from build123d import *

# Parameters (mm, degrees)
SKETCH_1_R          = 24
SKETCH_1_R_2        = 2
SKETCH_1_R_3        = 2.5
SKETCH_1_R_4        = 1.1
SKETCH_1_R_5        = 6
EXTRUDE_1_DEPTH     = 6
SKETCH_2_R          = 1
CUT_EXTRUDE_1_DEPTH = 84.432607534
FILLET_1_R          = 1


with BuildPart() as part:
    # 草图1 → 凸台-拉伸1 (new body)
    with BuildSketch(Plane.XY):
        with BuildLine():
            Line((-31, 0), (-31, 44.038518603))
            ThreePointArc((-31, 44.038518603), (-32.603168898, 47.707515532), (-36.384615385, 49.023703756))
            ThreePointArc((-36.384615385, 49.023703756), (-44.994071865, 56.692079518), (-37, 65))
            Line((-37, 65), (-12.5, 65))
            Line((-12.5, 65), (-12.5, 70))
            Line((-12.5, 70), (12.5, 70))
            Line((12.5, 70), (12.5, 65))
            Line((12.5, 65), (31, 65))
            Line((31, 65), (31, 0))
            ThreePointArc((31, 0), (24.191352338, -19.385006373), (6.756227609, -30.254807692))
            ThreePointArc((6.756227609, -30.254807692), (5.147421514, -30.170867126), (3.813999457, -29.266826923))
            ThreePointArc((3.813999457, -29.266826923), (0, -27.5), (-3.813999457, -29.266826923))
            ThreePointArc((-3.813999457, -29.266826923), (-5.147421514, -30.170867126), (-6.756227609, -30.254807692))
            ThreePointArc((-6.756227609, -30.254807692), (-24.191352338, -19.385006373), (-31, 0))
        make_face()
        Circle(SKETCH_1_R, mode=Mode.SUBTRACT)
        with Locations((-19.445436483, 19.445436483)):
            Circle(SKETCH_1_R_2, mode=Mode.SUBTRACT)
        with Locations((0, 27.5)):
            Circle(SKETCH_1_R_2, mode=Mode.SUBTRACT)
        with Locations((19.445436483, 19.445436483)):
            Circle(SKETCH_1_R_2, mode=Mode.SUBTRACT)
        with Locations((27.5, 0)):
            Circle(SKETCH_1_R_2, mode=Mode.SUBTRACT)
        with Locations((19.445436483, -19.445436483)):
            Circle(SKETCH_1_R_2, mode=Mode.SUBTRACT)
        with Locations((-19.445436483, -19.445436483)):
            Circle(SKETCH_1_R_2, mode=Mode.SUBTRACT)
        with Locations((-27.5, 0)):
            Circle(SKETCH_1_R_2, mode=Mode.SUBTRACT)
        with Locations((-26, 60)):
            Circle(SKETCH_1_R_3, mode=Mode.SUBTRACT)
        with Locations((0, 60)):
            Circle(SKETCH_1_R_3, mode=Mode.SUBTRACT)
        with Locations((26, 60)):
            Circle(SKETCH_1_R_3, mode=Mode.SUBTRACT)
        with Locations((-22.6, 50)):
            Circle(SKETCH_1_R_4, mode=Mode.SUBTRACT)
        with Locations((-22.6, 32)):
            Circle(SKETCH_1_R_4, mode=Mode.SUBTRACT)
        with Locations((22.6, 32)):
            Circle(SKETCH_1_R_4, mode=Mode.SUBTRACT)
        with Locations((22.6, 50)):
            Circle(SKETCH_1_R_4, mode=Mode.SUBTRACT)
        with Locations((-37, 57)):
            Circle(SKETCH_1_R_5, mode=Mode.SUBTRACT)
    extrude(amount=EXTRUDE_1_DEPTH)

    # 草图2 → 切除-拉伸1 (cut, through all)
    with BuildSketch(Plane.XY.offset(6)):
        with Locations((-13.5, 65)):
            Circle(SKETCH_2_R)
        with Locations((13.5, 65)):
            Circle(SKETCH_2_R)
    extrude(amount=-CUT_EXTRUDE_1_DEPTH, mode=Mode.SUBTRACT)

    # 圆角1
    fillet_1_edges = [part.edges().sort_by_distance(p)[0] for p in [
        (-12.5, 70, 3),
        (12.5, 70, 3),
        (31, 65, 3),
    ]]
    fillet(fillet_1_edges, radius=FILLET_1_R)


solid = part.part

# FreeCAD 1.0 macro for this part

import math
import FreeCAD as App
import Part
import Sketcher
Q = App.Units.Quantity


def edges_at(feature, points):
    """Names of the edges that pass closest to the given points."""
    edges = feature.Shape.Edges
    near = lambda p: min(range(len(edges)), key=lambda i: edges[i].distToShape(Part.Vertex(*p))[0])
    return sorted({f"Edge{near(p) + 1}" for p in points})

doc = App.newDocument("Part")
params = doc.addObject("Spreadsheet::Sheet", "Params")
for row, (alias, value) in enumerate([
    ("sketch1_diameter", "4 mm"),
    ("sketch1_diameter2", "48 mm"),
    ("sketch1_diameter3", "5 mm"),
    ("sketch1_diameter4", "12 mm"),
    ("sketch1_radius", "31 mm"),
    ("pad1_length", "6 mm"),
    ("sketch2_diameter", "2 mm"),
    ("fillet_radius", "1 mm"),
], start=1):
    params.set(f"A{row}", alias)
    params.set(f"B{row}", "=" + value)
    params.setAlias(f"B{row}", alias)

body = doc.addObject("PartDesign::Body", "Body")

sketch1 = body.newObject("Sketcher::SketchObject", "Sketch")
sketch1.AttachmentSupport = (doc.getObject("XY_Plane"), [""])
sketch1.MapMode = "FlatFace"
sketch1.addGeometry([
    Part.LineSegment(App.Vector(-31, 44, 0), App.Vector(-31, 0, 0)),
    Part.ArcOfCircle(Part.Circle(App.Vector(0, 0, 0), App.Vector(0, 0, 1), 31), math.radians(180), math.radians(257)),
    Part.ArcOfCircle(Part.Circle(App.Vector(-6.1, -27.3, 0), App.Vector(0, 0, 1), 3), math.radians(-103), math.radians(-40)),
    Part.ArcOfCircle(Part.Circle(App.Vector(0, -32.5, 0), App.Vector(0, 0, 1), 5), math.radians(40), math.radians(140)),
    Part.ArcOfCircle(Part.Circle(App.Vector(6.1, -27.3, 0), App.Vector(0, 0, 1), 3), math.radians(-140), math.radians(-77)),
    Part.ArcOfCircle(Part.Circle(App.Vector(0, 0, 0), App.Vector(0, 0, 1), 31), math.radians(-77), math.radians(0)),
    Part.LineSegment(App.Vector(31, 0, 0), App.Vector(31, 65, 0)),
    Part.LineSegment(App.Vector(31, 65, 0), App.Vector(12.5, 65, 0)),
    Part.LineSegment(App.Vector(12.5, 65, 0), App.Vector(12.5, 70, 0)),
    Part.LineSegment(App.Vector(12.5, 70, 0), App.Vector(-12.5, 70, 0)),
    Part.LineSegment(App.Vector(-12.5, 70, 0), App.Vector(-12.5, 65, 0)),
    Part.LineSegment(App.Vector(-12.5, 65, 0), App.Vector(-37, 65, 0)),
    Part.ArcOfCircle(Part.Circle(App.Vector(-37, 57, 0), App.Vector(0, 0, 1), 8), math.radians(90), math.radians(274)),
    Part.ArcOfCircle(Part.Circle(App.Vector(-36, 44, 0), App.Vector(0, 0, 1), 5), math.radians(0), math.radians(94)),
    Part.Circle(App.Vector(19.4, -19.4, 0), App.Vector(0, 0, 1), 2),
    Part.Circle(App.Vector(27.5, 0, 0), App.Vector(0, 0, 1), 2),
    Part.Circle(App.Vector(19.4, 19.4, 0), App.Vector(0, 0, 1), 2),
    Part.Circle(App.Vector(0, 0, 0), App.Vector(0, 0, 1), 24),
    Part.Circle(App.Vector(-19.4, -19.4, 0), App.Vector(0, 0, 1), 2),
    Part.Circle(App.Vector(-19.4, 19.4, 0), App.Vector(0, 0, 1), 2),
    Part.Circle(App.Vector(-27.5, 0, 0), App.Vector(0, 0, 1), 2),
    Part.Circle(App.Vector(22.6, 32, 0), App.Vector(0, 0, 1), 1.1),
    Part.Circle(App.Vector(0, 27.5, 0), App.Vector(0, 0, 1), 2),
    Part.Circle(App.Vector(22.6, 50, 0), App.Vector(0, 0, 1), 1.1),
    Part.Circle(App.Vector(26, 60, 0), App.Vector(0, 0, 1), 2.5),
    Part.Circle(App.Vector(0, 60, 0), App.Vector(0, 0, 1), 2.5),
    Part.Circle(App.Vector(-22.6, 32, 0), App.Vector(0, 0, 1), 1.1),
    Part.Circle(App.Vector(-22.6, 50, 0), App.Vector(0, 0, 1), 1.1),
    Part.Circle(App.Vector(-26, 60, 0), App.Vector(0, 0, 1), 2.5),
    Part.Circle(App.Vector(-37, 57, 0), App.Vector(0, 0, 1), 6),
], False)
sketch1.addConstraint([
    Sketcher.Constraint("Tangent", 0, 2, 1, 1),
    Sketcher.Constraint("Tangent", 1, 2, 2, 1),
    Sketcher.Constraint("Tangent", 2, 2, 3, 2),
    Sketcher.Constraint("Tangent", 3, 1, 4, 1),
    Sketcher.Constraint("Tangent", 4, 2, 5, 1),
    Sketcher.Constraint("Tangent", 5, 2, 6, 1),
    Sketcher.Constraint("Coincident", 6, 2, 7, 1),
    Sketcher.Constraint("Coincident", 7, 2, 8, 1),
    Sketcher.Constraint("Coincident", 8, 2, 9, 1),
    Sketcher.Constraint("Coincident", 9, 2, 10, 1),
    Sketcher.Constraint("Coincident", 10, 2, 11, 1),
    Sketcher.Constraint("Tangent", 11, 2, 12, 1),
    Sketcher.Constraint("Tangent", 12, 2, 13, 2),
    Sketcher.Constraint("Tangent", 13, 1, 0, 1),
    Sketcher.Constraint("Vertical", 0),
    Sketcher.Constraint("Vertical", 6),
    Sketcher.Constraint("Horizontal", 7),
    Sketcher.Constraint("Vertical", 8),
    Sketcher.Constraint("Horizontal", 9),
    Sketcher.Constraint("Vertical", 10),
    Sketcher.Constraint("Horizontal", 11),
    Sketcher.Constraint("Coincident", 1, 3, -1, 1),
    Sketcher.Constraint("Coincident", 5, 3, -1, 1),
    Sketcher.Constraint("Coincident", 17, 3, -1, 1),
    Sketcher.Constraint("Coincident", 29, 3, 12, 3),
    Sketcher.Constraint("Equal", 2, 4),
    Sketcher.Constraint("Equal", 1, 5),
    Sketcher.Constraint("Equal", 3, 13),
    Sketcher.Constraint("Equal", 14, 15),
    Sketcher.Constraint("Equal", 15, 16),
    Sketcher.Constraint("Equal", 16, 18),
    Sketcher.Constraint("Equal", 18, 19),
    Sketcher.Constraint("Equal", 19, 20),
    Sketcher.Constraint("Equal", 20, 22),
    Sketcher.Constraint("Equal", 21, 23),
    Sketcher.Constraint("Equal", 24, 25),
    Sketcher.Constraint("Equal", 23, 26),
    Sketcher.Constraint("Equal", 26, 27),
    Sketcher.Constraint("Equal", 25, 28),
    Sketcher.Constraint("Symmetric", 16, 3, 18, 3, -1, 1),
    Sketcher.Constraint("Symmetric", 14, 3, 19, 3, -1, 1),
    Sketcher.Constraint("Symmetric", 15, 3, 20, 3, -1, 1),
    Sketcher.Constraint("Symmetric", 14, 3, 18, 3, -2),
    Sketcher.Constraint("Symmetric", 21, 3, 26, 3, -2),
    Sketcher.Constraint("Symmetric", 23, 3, 27, 3, -2),
    Sketcher.Constraint("Symmetric", 24, 3, 28, 3, -2),
    Sketcher.Constraint("Symmetric", 7, 2, 10, 2, -2),
    Sketcher.Constraint("PointOnObject", 3, 3, -2),
    Sketcher.Constraint("PointOnObject", 15, 3, -1),
    Sketcher.Constraint("PointOnObject", 22, 3, -2),
    Sketcher.Constraint("PointOnObject", 25, 3, -2),
    Sketcher.Constraint("Horizontal", 24, 3, 25, 3),
    Sketcher.Constraint("Vertical", 21, 3, 23, 3),
    Sketcher.Constraint("Diameter", 14, Q("4 mm")),
    Sketcher.Constraint("Diameter", 17, Q("48 mm")),
    Sketcher.Constraint("Diameter", 24, Q("5 mm")),
    Sketcher.Constraint("Diameter", 29, Q("12 mm")),
    Sketcher.Constraint("Radius", 1, Q("31 mm")),
    Sketcher.Constraint("Radius", 2, Q("3 mm")),
    Sketcher.Constraint("Radius", 3, Q("5 mm")),
    Sketcher.Constraint("Radius", 12, Q("8 mm")),
    Sketcher.Constraint("Diameter", 21, Q("2.2 mm")),
    Sketcher.Constraint("DistanceX", 9, 2, 9, 1, Q("25 mm")),
    Sketcher.Constraint("DistanceY", 6, 1, 6, 2, Q("65 mm")),
    Sketcher.Constraint("DistanceY", 8, 1, 8, 2, Q("5 mm")),
    Sketcher.Constraint("DistanceX", 11, 2, 11, 1, Q("24.5 mm")),
    Sketcher.Constraint("DistanceY", -1, 1, 21, 3, Q("32 mm")),
    Sketcher.Constraint("DistanceY", -1, 1, 23, 3, Q("50 mm")),
    Sketcher.Constraint("DistanceX", -1, 1, 24, 3, Q("26 mm")),
    Sketcher.Constraint("DistanceY", -1, 1, 24, 3, Q("60 mm")),
    Sketcher.Constraint("DistanceY", 3, 3, -1, 1, Q("32.5 mm")),
    Sketcher.Constraint("DistanceX", -1, 1, 15, 3, Q("27.5 mm")),
    Sketcher.Constraint("DistanceX", -1, 1, 21, 3, Q("22.6 mm")),
    Sketcher.Constraint("DistanceY", -1, 1, 22, 3, Q("27.5 mm")),
    Sketcher.Constraint("DistanceY", 4, 3, 16, 3, Q("46.77236 mm")),
    Sketcher.Constraint("DistanceX", 18, 3, 1, 2, Q("12.689209 mm")),
])
sketch1.setExpression("Constraints[53]", "Params.sketch1_diameter")
sketch1.setExpression("Constraints[54]", "Params.sketch1_diameter2")
sketch1.setExpression("Constraints[55]", "Params.sketch1_diameter3")
sketch1.setExpression("Constraints[56]", "Params.sketch1_diameter4")
sketch1.setExpression("Constraints[57]", "Params.sketch1_radius")
pad1 = body.newObject("PartDesign::Pad", "Pad")
pad1.Profile = sketch1
pad1.setExpression("Length", "Params.pad1_length")

sketch2 = body.newObject("Sketcher::SketchObject", "Sketch001")
sketch2.AttachmentSupport = (doc.getObject("XY_Plane"), [""])
sketch2.MapMode = "FlatFace"
sketch2.AttachmentOffset = App.Placement(App.Vector(0, 0, 6), App.Rotation())
sketch2.addGeometry([
    Part.Circle(App.Vector(-13.5, 65, 0), App.Vector(0, 0, 1), 1),
    Part.Circle(App.Vector(13.5, 65, 0), App.Vector(0, 0, 1), 1),
], False)
sketch2.addConstraint([
    Sketcher.Constraint("Equal", 0, 1),
    Sketcher.Constraint("Symmetric", 0, 3, 1, 3, -2),
    Sketcher.Constraint("Diameter", 0, Q("2 mm")),
    Sketcher.Constraint("DistanceY", -1, 1, 0, 3, Q("65 mm")),
    Sketcher.Constraint("DistanceX", 0, 3, 1, 3, Q("27 mm")),
])
sketch2.setExpression("Constraints[2]", "Params.sketch2_diameter")
pocket1 = body.newObject("PartDesign::Pocket", "Pocket")
pocket1.Profile = sketch2
pocket1.Type = "ThroughAll"
doc.recompute()

fillet = body.newObject("PartDesign::Fillet", "Fillet")
fillet.Base = (pocket1, edges_at(pocket1, [(-12.5, 70, 3), (12.5, 70, 3), (31, 65, 3)]))
fillet.setExpression("Radius", "Params.fillet_radius")

doc.recompute()
